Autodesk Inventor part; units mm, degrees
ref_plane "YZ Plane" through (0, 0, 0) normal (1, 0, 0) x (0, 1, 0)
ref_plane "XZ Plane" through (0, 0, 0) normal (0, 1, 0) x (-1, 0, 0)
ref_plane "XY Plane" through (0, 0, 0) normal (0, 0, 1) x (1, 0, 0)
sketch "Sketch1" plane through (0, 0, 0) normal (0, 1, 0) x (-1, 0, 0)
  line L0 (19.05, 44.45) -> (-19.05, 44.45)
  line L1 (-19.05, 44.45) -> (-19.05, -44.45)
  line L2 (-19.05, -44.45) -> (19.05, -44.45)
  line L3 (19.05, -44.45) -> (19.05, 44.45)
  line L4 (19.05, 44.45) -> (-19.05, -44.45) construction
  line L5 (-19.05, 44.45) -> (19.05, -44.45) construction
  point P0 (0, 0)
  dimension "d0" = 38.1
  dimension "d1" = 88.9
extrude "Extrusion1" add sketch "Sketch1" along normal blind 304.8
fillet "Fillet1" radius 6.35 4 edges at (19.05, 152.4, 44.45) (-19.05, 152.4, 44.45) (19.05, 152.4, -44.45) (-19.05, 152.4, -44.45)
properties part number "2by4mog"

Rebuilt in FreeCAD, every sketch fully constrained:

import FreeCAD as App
import Part
import Sketcher
from FreeCAD import Vector
Q = App.Units.Quantity


def edges_at(feature, points):
    """Names of the edges that pass closest to the given points."""
    edges = feature.Shape.Edges
    near = lambda p: min(range(len(edges)), key=lambda i: edges[i].distToShape(Part.Vertex(*p))[0])
    return sorted({f"Edge{near(p) + 1}" for p in points})


def add_polygon(sketch, points):
    """Adds a closed chain of lines whose ends are joined by coincident constraints."""
    first, n = sketch.GeometryCount, len(points)
    for a, b in zip(points, points[1:] + points[:1]):
        sketch.addGeometry(Part.LineSegment(App.Vector(*a, 0), App.Vector(*b, 0)), False)
    for i in range(n):
        sketch.addConstraint(Sketcher.Constraint("Coincident", first + i, 2, first + (i + 1) % n, 1))

doc = App.newDocument("Part")
body = doc.addObject("PartDesign::Body", "Body")

# Sketch on XZ plane
sketch1 = body.newObject("Sketcher::SketchObject", "Sketch")
sketch1.AttachmentSupport = (doc.getObject("XZ_Plane"), [""])
sketch1.MapMode = "FlatFace"
add_polygon(sketch1, [(-19.05, -44.45), (-19.05, 44.45), (19.05, 44.45), (19.05, -44.45)])  # lines 0-3
sketch1.addConstraint([
    Sketcher.Constraint("Vertical", 0),
    Sketcher.Constraint("Horizontal", 1),
    Sketcher.Constraint("Vertical", 2),
    Sketcher.Constraint("Horizontal", 3),
    Sketcher.Constraint("Symmetric", 0, 2, 2, 2, -1, 1),
    Sketcher.Constraint("DistanceX", 1, 1, 1, 2, Q("1.5 in")),
    Sketcher.Constraint("DistanceY", 0, 1, 0, 2, Q("3.5 in")),
])
pad1 = body.newObject("PartDesign::Pad", "Pad")
pad1.Profile = sketch1
pad1.Length = Q("12 in")
pad1.Reversed = True
doc.recompute()

fillet = body.newObject("PartDesign::Fillet", "Fillet")
fillet.Base = (pad1, edges_at(pad1, [
    (19.05, 152.4, 44.45),
    (-19.05, 152.4, 44.45),
    (19.05, 152.4, -44.45),
    (-19.05, 152.4, -44.45),
]))
fillet.Radius = Q("0.25 in")

doc.recompute()
